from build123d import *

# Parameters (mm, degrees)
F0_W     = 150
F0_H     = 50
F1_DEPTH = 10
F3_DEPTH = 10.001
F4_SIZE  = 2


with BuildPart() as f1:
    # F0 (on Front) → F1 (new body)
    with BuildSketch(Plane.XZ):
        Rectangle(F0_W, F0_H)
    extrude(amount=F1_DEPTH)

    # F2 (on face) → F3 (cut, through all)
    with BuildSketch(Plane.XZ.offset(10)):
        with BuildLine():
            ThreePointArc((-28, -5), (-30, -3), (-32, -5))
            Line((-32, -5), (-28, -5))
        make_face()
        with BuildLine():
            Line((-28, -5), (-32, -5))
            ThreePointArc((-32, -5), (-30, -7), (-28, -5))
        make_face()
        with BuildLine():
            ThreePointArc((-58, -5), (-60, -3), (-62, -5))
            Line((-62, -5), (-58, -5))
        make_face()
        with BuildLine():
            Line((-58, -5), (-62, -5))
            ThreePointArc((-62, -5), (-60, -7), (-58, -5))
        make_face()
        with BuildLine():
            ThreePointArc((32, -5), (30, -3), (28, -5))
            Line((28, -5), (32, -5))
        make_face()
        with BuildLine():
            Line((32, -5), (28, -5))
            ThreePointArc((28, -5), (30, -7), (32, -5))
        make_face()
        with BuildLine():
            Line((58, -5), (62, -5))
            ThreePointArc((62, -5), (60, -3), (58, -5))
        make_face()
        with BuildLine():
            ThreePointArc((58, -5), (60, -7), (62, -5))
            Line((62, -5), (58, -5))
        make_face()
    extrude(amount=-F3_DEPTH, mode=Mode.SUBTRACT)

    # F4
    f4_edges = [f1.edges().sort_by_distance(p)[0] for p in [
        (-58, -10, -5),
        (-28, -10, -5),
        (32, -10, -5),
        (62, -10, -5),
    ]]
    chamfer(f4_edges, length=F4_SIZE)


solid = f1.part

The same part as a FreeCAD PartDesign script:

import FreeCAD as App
import Part
import Sketcher

V = App.Vector


def edges_at(feature, points):
    """Names of the edges that pass closest to the given points."""
    edges = feature.Shape.Edges
    near = lambda p: min(range(len(edges)), key=lambda i: edges[i].distToShape(Part.Vertex(*p))[0])
    return sorted({f"Edge{near(p) + 1}" for p in points})

doc = App.newDocument("Part")
body = doc.addObject("PartDesign::Body", "Body")

# Sketch on XZ plane
sketch1 = body.newObject("Sketcher::SketchObject", "Sketch")
sketch1.AttachmentSupport = (doc.getObject("XZ_Plane"), [""])
sketch1.MapMode = "FlatFace"
sketch1.addGeometry([
    Part.LineSegment(V(-75, 25, 0), V(-75, -25, 0)),
    Part.LineSegment(V(-75, -25, 0), V(75, -25, 0)),
    Part.LineSegment(V(75, -25, 0), V(75, 25, 0)),
    Part.LineSegment(V(75, 25, 0), V(-75, 25, 0)),
], False)
sketch1.addConstraint([
    Sketcher.Constraint("Coincident", 0, 2, 1, 1),
    Sketcher.Constraint("Coincident", 1, 2, 2, 1),
    Sketcher.Constraint("Coincident", 2, 2, 3, 1),
    Sketcher.Constraint("Coincident", 3, 2, 0, 1),
    Sketcher.Constraint("Vertical", 0),
    Sketcher.Constraint("Horizontal", 1),
    Sketcher.Constraint("Vertical", 2),
    Sketcher.Constraint("Horizontal", 3),
    Sketcher.Constraint("Symmetric", 0, 2, 2, 2, -1, 1),
    Sketcher.Constraint("DistanceX", 1, 1, 1, 2, 150.0),
    Sketcher.Constraint("DistanceY", 0, 2, 0, 1, 50.0),
])
pad1 = body.newObject("PartDesign::Pad", "Pad")
pad1.Profile = sketch1
pad1.Length = 10

# Sketch on XZ plane
sketch2 = body.newObject("Sketcher::SketchObject", "Sketch001")
sketch2.AttachmentSupport = (doc.getObject("XZ_Plane"), [""])
sketch2.MapMode = "FlatFace"
sketch2.AttachmentOffset = App.Placement(V(0, 0, 10), App.Rotation())
sketch2.addGeometry([
    Part.Circle(V(-30, -5, 0), V(0, 0, 1), 2),
    Part.Circle(V(-60, -5, 0), V(0, 0, 1), 2),
    Part.Circle(V(30, -5, 0), V(0, 0, 1), 2),
    Part.Circle(V(60, -5, 0), V(0, 0, 1), 2),
], False)
sketch2.addConstraint([
    Sketcher.Constraint("Equal", 0, 1),
    Sketcher.Constraint("Equal", 1, 2),
    Sketcher.Constraint("Equal", 2, 3),
    Sketcher.Constraint("Symmetric", 0, 3, 2, 3, -2),
    Sketcher.Constraint("Symmetric", 1, 3, 3, 3, -2),
    Sketcher.Constraint("Horizontal", 0, 3, 1, 3),
    Sketcher.Constraint("Diameter", 0, 4.0),
    Sketcher.Constraint("DistanceX", 0, 3, -1, 1, 30.0),
    Sketcher.Constraint("DistanceY", 0, 3, -1, 1, 5.0),
    Sketcher.Constraint("DistanceX", 1, 3, -1, 1, 60.0),
])
pocket1 = body.newObject("PartDesign::Pocket", "Pocket")
pocket1.Profile = sketch2
pocket1.Type = "ThroughAll"
doc.recompute()

chamfer = body.newObject("PartDesign::Chamfer", "Chamfer")
chamfer.Base = (pocket1, edges_at(pocket1, [
    (-58, -10, -5),
    (-28, -10, -5),
    (32, -10, -5),
    (62, -10, -5),
]))
chamfer.Size = 2

doc.recompute()
